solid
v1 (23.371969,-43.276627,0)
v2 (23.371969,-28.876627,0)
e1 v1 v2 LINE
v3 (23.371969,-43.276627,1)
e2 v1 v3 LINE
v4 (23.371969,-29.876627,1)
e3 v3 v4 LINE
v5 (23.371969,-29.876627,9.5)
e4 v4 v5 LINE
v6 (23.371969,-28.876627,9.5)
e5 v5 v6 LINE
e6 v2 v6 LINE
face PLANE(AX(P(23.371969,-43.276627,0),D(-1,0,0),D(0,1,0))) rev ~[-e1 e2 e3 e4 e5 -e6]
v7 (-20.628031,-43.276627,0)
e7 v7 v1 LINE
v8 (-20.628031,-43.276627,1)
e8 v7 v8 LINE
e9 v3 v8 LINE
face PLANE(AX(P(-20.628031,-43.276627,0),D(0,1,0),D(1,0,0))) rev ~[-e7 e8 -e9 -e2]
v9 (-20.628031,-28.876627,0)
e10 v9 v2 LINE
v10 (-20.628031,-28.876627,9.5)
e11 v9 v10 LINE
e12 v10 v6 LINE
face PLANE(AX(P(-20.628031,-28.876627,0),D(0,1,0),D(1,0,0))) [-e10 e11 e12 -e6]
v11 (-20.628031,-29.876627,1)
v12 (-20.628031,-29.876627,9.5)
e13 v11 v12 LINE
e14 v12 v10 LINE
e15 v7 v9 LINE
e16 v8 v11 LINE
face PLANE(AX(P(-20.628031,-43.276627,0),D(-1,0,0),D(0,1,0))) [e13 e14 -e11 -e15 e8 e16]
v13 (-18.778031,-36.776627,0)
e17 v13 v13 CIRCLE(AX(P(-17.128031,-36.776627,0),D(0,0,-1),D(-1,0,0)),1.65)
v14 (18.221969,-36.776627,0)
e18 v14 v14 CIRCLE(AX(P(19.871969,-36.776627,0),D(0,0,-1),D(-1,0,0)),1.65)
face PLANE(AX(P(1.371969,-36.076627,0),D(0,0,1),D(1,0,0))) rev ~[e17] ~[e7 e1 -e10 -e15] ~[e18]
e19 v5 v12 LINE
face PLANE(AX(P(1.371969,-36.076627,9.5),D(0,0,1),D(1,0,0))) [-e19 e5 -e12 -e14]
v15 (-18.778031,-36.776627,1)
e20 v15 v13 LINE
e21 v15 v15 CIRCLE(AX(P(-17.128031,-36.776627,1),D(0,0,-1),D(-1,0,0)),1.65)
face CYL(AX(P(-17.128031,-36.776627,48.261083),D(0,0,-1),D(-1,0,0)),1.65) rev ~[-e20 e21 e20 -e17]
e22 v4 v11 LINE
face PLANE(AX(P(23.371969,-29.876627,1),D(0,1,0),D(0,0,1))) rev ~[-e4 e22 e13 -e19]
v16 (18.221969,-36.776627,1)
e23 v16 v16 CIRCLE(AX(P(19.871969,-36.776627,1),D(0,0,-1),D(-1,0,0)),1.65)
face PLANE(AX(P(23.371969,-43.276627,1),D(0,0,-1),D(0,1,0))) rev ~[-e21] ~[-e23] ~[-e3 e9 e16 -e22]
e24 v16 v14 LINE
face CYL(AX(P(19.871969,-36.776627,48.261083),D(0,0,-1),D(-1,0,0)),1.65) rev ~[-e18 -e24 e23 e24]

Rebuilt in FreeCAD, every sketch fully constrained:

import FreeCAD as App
import Part
import Sketcher

doc = App.newDocument("Part")
body = doc.addObject("PartDesign::Body", "Body")

# Sketch on XY plane
sketch1 = body.newObject("Sketcher::SketchObject", "Sketch")
sketch1.AttachmentSupport = (doc.getObject("XY_Plane"), [""])
sketch1.MapMode = "FlatFace"
sketch1.addGeometry(Part.LineSegment(App.Vector(-21, -29, 0), App.Vector(-21, -43, 0)), False)
sketch1.addGeometry(Part.LineSegment(App.Vector(-21, -43, 0), App.Vector(23, -43, 0)), False)
sketch1.addGeometry(Part.LineSegment(App.Vector(23, -43, 0), App.Vector(23, -29, 0)), False)
sketch1.addGeometry(Part.LineSegment(App.Vector(23, -29, 0), App.Vector(-21, -29, 0)), False)
sketch1.addConstraint(Sketcher.Constraint("Coincident", 0, 2, 1, 1))
sketch1.addConstraint(Sketcher.Constraint("Coincident", 1, 2, 2, 1))
sketch1.addConstraint(Sketcher.Constraint("Coincident", 2, 2, 3, 1))
sketch1.addConstraint(Sketcher.Constraint("Coincident", 3, 2, 0, 1))
sketch1.addConstraint(Sketcher.Constraint("Vertical", 0))
sketch1.addConstraint(Sketcher.Constraint("Horizontal", 1))
sketch1.addConstraint(Sketcher.Constraint("Vertical", 2))
sketch1.addConstraint(Sketcher.Constraint("Horizontal", 3))
sketch1.addConstraint(Sketcher.Constraint("DistanceX", 1, 1, 1, 2, 44.0))
sketch1.addConstraint(Sketcher.Constraint("DistanceY", 0, 2, 0, 1, 14.4))
sketch1.addConstraint(Sketcher.Constraint("DistanceX", 0, 2, -1, 1, 20.628031))
sketch1.addConstraint(Sketcher.Constraint("DistanceY", 0, 2, -1, 1, 43.276627))
pad1 = body.newObject("PartDesign::Pad", "Pad")
pad1.Profile = sketch1
pad1.Length = 9.5

# Sketch on YZ plane
sketch2 = body.newObject("Sketcher::SketchObject", "Sketch001")
sketch2.AttachmentSupport = (doc.getObject("YZ_Plane"), [""])
sketch2.MapMode = "FlatFace"
sketch2.AttachmentOffset = App.Placement(App.Vector(0, 0, 23.371969), App.Rotation())
sketch2.addGeometry(Part.LineSegment(App.Vector(-43, 10, 0), App.Vector(-43, 1, 0)), False)
sketch2.addGeometry(Part.LineSegment(App.Vector(-43, 1, 0), App.Vector(-30, 1, 0)), False)
sketch2.addGeometry(Part.LineSegment(App.Vector(-30, 1, 0), App.Vector(-30, 10, 0)), False)
sketch2.addGeometry(Part.LineSegment(App.Vector(-30, 10, 0), App.Vector(-43, 10, 0)), False)
sketch2.addConstraint(Sketcher.Constraint("Coincident", 0, 2, 1, 1))
sketch2.addConstraint(Sketcher.Constraint("Coincident", 1, 2, 2, 1))
sketch2.addConstraint(Sketcher.Constraint("Coincident", 2, 2, 3, 1))
sketch2.addConstraint(Sketcher.Constraint("Coincident", 3, 2, 0, 1))
sketch2.addConstraint(Sketcher.Constraint("Vertical", 0))
sketch2.addConstraint(Sketcher.Constraint("Horizontal", 1))
sketch2.addConstraint(Sketcher.Constraint("Vertical", 2))
sketch2.addConstraint(Sketcher.Constraint("Horizontal", 3))
sketch2.addConstraint(Sketcher.Constraint("DistanceX", 1, 1, 1, 2, 13.4))
sketch2.addConstraint(Sketcher.Constraint("DistanceY", 0, 2, 0, 1, 8.5))
sketch2.addConstraint(Sketcher.Constraint("DistanceY", -1, 1, 0, 2, 1.0))
sketch2.addConstraint(Sketcher.Constraint("DistanceX", 0, 2, -1, 1, 43.276627))
pocket1 = body.newObject("PartDesign::Pocket", "Pocket")
pocket1.Profile = sketch2
pocket1.Length = 44

# Sketch on XY plane
sketch3 = body.newObject("Sketcher::SketchObject", "Sketch002")
sketch3.AttachmentSupport = (doc.getObject("XY_Plane"), [""])
sketch3.MapMode = "FlatFace"
sketch3.AttachmentOffset = App.Placement(App.Vector(0, 0, 1), App.Rotation())
sketch3.addGeometry(Part.Circle(App.Vector(-17.1, -36.8, 0), App.Vector(0, 0, 1), 1.6), False)
sketch3.addGeometry(Part.Circle(App.Vector(19.9, -36.8, 0), App.Vector(0, 0, 1), 1.6), False)
sketch3.addConstraint(Sketcher.Constraint("Equal", 0, 1))
sketch3.addConstraint(Sketcher.Constraint("Horizontal", 0, 3, 1, 3))
sketch3.addConstraint(Sketcher.Constraint("Diameter", 0, 3.3))
sketch3.addConstraint(Sketcher.Constraint("DistanceX", 0, 3, 1, 3, 37.0))
sketch3.addConstraint(Sketcher.Constraint("DistanceX", 0, 3, -1, 1, 17.128031))
sketch3.addConstraint(Sketcher.Constraint("DistanceY", 0, 3, -1, 1, 36.776627))
doc.recompute()
hole = body.newObject("PartDesign::Hole", "Hole")
hole.Profile = sketch3
hole.ThreadType = "None"
hole.Diameter = 3.3
hole.DepthType = "ThroughAll"

doc.recompute()
